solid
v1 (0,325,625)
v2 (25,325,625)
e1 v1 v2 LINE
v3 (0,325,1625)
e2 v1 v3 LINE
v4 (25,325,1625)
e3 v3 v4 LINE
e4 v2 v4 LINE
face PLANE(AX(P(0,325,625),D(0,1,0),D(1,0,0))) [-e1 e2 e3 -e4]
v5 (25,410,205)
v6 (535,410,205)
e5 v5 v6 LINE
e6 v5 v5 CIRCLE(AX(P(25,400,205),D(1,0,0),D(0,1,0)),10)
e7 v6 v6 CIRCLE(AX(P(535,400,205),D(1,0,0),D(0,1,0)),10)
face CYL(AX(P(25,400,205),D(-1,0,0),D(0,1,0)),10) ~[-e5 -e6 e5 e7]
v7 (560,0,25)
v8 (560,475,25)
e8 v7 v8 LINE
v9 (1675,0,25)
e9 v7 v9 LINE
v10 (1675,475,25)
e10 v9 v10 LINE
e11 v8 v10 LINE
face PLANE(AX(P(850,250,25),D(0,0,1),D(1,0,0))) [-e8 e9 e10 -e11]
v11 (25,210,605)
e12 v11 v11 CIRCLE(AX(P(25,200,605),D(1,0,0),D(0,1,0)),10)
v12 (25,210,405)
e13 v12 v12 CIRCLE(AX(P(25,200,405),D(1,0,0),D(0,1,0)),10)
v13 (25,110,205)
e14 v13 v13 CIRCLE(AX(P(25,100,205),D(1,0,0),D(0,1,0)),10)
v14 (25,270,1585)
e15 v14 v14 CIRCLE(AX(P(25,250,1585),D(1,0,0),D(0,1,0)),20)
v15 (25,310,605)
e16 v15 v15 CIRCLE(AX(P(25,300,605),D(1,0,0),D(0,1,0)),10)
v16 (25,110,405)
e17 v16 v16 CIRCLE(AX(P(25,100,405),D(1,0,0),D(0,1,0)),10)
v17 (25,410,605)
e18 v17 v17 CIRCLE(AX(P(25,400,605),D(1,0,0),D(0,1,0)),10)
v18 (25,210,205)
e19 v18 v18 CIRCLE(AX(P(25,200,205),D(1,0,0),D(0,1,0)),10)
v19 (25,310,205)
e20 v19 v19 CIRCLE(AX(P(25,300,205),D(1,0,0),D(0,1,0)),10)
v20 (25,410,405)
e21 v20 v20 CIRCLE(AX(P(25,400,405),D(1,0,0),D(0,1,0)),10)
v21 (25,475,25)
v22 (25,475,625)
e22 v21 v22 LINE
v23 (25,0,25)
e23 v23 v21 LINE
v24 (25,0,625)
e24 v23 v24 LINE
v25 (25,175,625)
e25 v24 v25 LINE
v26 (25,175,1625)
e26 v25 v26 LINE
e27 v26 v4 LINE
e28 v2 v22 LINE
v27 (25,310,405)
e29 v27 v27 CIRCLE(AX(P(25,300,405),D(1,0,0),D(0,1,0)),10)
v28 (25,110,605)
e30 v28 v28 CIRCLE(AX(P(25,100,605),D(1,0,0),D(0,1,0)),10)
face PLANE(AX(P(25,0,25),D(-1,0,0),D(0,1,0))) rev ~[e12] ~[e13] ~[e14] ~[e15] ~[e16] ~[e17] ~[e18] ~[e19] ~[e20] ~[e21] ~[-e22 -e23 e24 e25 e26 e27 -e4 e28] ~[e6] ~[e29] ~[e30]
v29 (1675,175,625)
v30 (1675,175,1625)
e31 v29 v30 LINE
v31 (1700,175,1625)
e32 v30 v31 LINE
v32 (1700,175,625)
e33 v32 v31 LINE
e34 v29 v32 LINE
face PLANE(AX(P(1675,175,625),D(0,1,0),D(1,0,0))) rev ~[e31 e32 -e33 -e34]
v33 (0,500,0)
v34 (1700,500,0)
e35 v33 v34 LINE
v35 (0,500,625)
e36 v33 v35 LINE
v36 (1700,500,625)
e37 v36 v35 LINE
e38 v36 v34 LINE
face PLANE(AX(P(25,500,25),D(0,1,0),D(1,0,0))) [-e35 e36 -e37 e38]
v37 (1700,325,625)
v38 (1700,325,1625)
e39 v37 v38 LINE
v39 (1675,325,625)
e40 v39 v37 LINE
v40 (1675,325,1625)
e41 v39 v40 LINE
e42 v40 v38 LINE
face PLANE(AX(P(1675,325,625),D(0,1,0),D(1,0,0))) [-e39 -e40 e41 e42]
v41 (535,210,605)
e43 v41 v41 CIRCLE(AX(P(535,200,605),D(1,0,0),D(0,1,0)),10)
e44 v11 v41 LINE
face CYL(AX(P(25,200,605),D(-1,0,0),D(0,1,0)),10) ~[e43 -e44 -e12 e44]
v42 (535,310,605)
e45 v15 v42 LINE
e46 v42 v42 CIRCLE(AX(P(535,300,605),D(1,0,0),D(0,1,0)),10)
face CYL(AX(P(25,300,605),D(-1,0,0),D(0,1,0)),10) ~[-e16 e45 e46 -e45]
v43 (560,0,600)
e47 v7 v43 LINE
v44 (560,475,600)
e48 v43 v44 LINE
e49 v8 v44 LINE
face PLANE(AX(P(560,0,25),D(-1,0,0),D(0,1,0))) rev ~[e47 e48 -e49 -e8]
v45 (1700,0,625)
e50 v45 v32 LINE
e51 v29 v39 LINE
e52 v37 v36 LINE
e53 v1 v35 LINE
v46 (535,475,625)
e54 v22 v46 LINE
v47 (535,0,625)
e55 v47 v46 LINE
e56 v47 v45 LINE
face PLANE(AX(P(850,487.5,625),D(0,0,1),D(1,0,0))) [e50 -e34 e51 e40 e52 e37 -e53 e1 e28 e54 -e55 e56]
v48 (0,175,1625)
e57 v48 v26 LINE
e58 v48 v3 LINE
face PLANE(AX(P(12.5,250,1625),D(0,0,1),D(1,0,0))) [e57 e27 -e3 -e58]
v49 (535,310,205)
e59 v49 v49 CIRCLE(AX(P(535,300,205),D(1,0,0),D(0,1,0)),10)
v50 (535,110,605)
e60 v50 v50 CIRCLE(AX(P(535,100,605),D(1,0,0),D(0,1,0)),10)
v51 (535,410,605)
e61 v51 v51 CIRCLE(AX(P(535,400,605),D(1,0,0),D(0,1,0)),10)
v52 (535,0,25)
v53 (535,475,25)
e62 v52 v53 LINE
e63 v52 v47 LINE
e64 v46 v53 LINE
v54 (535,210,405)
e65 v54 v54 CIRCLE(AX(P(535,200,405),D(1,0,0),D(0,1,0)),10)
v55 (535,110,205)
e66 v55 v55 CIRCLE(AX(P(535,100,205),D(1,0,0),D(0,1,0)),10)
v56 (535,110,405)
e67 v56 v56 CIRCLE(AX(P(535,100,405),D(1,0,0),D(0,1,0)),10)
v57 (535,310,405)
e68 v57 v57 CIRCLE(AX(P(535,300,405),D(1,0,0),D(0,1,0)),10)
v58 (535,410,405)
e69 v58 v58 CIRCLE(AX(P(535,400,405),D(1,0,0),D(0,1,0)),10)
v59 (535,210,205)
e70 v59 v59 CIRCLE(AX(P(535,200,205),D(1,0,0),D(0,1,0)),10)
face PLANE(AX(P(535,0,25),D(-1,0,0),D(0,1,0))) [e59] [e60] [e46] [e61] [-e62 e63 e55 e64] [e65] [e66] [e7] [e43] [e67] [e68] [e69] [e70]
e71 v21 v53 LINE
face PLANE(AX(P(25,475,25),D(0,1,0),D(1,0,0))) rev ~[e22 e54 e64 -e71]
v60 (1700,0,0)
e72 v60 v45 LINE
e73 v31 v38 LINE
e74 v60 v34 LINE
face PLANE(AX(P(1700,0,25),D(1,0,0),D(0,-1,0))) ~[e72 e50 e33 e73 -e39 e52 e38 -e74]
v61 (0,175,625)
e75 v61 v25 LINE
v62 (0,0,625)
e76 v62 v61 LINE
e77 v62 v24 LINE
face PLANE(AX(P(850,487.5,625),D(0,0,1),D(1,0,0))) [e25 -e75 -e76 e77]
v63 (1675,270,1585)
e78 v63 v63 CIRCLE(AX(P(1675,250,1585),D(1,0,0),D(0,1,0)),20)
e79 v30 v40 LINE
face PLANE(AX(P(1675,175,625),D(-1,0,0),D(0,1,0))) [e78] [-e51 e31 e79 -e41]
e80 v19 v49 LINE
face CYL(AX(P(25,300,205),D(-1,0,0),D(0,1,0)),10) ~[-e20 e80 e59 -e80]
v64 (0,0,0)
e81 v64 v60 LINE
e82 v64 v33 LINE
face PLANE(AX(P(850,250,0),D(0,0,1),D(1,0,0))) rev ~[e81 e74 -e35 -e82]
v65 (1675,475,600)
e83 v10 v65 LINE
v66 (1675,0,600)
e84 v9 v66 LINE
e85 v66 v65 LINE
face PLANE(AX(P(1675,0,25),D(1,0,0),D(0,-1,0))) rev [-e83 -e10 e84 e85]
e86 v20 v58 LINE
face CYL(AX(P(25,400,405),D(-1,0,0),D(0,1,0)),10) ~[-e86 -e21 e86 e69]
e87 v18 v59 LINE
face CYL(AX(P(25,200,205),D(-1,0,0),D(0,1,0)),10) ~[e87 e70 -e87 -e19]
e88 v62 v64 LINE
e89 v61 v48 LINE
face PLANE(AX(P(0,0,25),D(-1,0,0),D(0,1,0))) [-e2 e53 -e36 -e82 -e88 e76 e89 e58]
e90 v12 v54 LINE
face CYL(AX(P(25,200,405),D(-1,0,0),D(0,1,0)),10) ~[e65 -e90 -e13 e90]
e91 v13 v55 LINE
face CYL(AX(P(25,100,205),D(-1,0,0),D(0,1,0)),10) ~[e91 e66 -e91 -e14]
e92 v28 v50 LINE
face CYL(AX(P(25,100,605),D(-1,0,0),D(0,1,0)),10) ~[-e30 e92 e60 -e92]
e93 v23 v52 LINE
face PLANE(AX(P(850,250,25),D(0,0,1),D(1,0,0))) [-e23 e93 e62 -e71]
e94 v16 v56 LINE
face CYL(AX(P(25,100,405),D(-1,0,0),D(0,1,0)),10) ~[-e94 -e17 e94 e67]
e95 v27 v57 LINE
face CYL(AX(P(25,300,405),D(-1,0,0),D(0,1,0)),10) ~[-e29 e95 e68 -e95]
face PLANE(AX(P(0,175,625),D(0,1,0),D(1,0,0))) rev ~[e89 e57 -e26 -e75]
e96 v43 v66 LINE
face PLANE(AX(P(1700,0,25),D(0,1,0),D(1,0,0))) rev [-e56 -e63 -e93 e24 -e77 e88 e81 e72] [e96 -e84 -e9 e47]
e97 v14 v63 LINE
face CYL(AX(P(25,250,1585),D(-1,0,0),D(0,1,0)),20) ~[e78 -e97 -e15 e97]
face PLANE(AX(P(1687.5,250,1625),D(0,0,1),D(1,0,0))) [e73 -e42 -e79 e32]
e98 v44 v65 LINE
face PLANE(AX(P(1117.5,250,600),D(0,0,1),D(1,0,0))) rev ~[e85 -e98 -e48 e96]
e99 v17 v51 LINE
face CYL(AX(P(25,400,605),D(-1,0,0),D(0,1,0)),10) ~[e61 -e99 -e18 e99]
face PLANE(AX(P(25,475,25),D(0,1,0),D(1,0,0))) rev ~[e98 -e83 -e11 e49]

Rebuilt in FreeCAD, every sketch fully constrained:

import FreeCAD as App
import Part
import Sketcher
from FreeCAD import Vector
Q = App.Units.Quantity

doc = App.newDocument("Part")
params = doc.addObject("Spreadsheet::Sheet", "Params")
for row, (alias, value) in enumerate([
    ("sketch1_width", "1700 mm"),
    ("sketch1_height", "500 mm"),
    ("pad1_length", "25 mm"),
    ("sketch2_width", "25 mm"),
    ("sketch2_height", "500 mm"),
    ("pad2_length", "600 mm"),
    ("sketch3_width", "1650 mm"),
    ("sketch3_height", "25 mm"),
    ("pad3_length", "600 mm"),
    ("sketch4_width", "25 mm"),
    ("sketch4_height", "475 mm"),
    ("pad4_length", "600 mm"),
    ("sketch5_width", "1165 mm"),
    ("sketch5_height", "500 mm"),
    ("pad5_length", "25 mm"),
    ("sketch6_diameter", "20 mm"),
    ("pad6_length", "510 mm"),
    ("sketch7_width", "25 mm"),
    ("sketch7_height", "150 mm"),
    ("pad7_length", "1000 mm"),
    ("sketch8_width", "25 mm"),
    ("sketch8_height", "150 mm"),
    ("pad8_length", "1000 mm"),
    ("sketch9_diameter", "40 mm"),
], start=1):
    params.set(f"A{row}", alias)
    params.set(f"B{row}", "=" + value)
    params.setAlias(f"B{row}", alias)

body = doc.addObject("PartDesign::Body", "Body")

sketch1 = body.newObject("Sketcher::SketchObject", "Sketch")
sketch1.AttachmentSupport = (doc.getObject("XY_Plane"), [""])
sketch1.MapMode = "FlatFace"
sketch1.addGeometry([
    Part.LineSegment(Vector(0, 500, 0), Vector(0, 0, 0)),
    Part.LineSegment(Vector(0, 0, 0), Vector(1700, 0, 0)),
    Part.LineSegment(Vector(1700, 0, 0), Vector(1700, 500, 0)),
    Part.LineSegment(Vector(1700, 500, 0), Vector(0, 500, 0)),
], False)
sketch1.addConstraint([
    Sketcher.Constraint("Coincident", 0, 2, 1, 1),
    Sketcher.Constraint("Coincident", 1, 2, 2, 1),
    Sketcher.Constraint("Coincident", 2, 2, 3, 1),
    Sketcher.Constraint("Coincident", 3, 2, 0, 1),
    Sketcher.Constraint("Vertical", 0),
    Sketcher.Constraint("Horizontal", 1),
    Sketcher.Constraint("Vertical", 2),
    Sketcher.Constraint("Horizontal", 3),
    Sketcher.Constraint("Coincident", 0, 2, -1, 1),
    Sketcher.Constraint("DistanceX", 1, 1, 1, 2, Q("1700 mm")),
    Sketcher.Constraint("DistanceY", 0, 2, 0, 1, Q("500 mm")),
])
sketch1.setExpression("Constraints[9]", "Params.sketch1_width")
sketch1.setExpression("Constraints[10]", "Params.sketch1_height")
pad1 = body.newObject("PartDesign::Pad", "Pad")
pad1.Profile = sketch1
pad1.setExpression("Length", "Params.pad1_length")

sketch2 = body.newObject("Sketcher::SketchObject", "Sketch001")
sketch2.AttachmentSupport = (doc.getObject("XY_Plane"), [""])
sketch2.MapMode = "FlatFace"
sketch2.AttachmentOffset = App.Placement(Vector(0, 0, 25), App.Rotation())
sketch2.addGeometry([
    Part.LineSegment(Vector(0, 500, 0), Vector(0, 0, 0)),
    Part.LineSegment(Vector(0, 0, 0), Vector(25, 0, 0)),
    Part.LineSegment(Vector(25, 0, 0), Vector(25, 500, 0)),
    Part.LineSegment(Vector(25, 500, 0), Vector(0, 500, 0)),
], False)
sketch2.addConstraint([
    Sketcher.Constraint("Coincident", 0, 2, 1, 1),
    Sketcher.Constraint("Coincident", 1, 2, 2, 1),
    Sketcher.Constraint("Coincident", 2, 2, 3, 1),
    Sketcher.Constraint("Coincident", 3, 2, 0, 1),
    Sketcher.Constraint("Vertical", 0),
    Sketcher.Constraint("Horizontal", 1),
    Sketcher.Constraint("Vertical", 2),
    Sketcher.Constraint("Horizontal", 3),
    Sketcher.Constraint("Coincident", 0, 2, -1, 1),
    Sketcher.Constraint("DistanceX", 1, 1, 1, 2, Q("25 mm")),
    Sketcher.Constraint("DistanceY", 0, 2, 0, 1, Q("500 mm")),
])
sketch2.setExpression("Constraints[9]", "Params.sketch2_width")
sketch2.setExpression("Constraints[10]", "Params.sketch2_height")
pad2 = body.newObject("PartDesign::Pad", "Pad001")
pad2.Profile = sketch2
pad2.setExpression("Length", "Params.pad2_length")
body2 = doc.addObject("PartDesign::Body", "Body001")
doc.recompute()

body2.BaseFeature = body
doc.recompute()

mirroring = doc.addObject("Part::Mirroring", "Mirroring")
mirroring.Source = body
mirroring.Base = Vector(850, 0, 0)
mirroring.Normal = Vector(1, 0, 0)
body3 = doc.addObject("PartDesign::Body", "Body002")
body3.BaseFeature = mirroring
boolean = body2.newObject("PartDesign::Boolean", "Boolean")
boolean.Type = "Fuse"
boolean.addObjects([body3])
doc.recompute()

sketch3 = body2.newObject("Sketcher::SketchObject", "Sketch002")
sketch3.AttachmentSupport = (doc.getObject("XY_Plane001"), [""])
sketch3.MapMode = "FlatFace"
sketch3.AttachmentOffset = App.Placement(Vector(0, 0, 25), App.Rotation())
sketch3.addGeometry([
    Part.LineSegment(Vector(25, 500, 0), Vector(25, 475, 0)),
    Part.LineSegment(Vector(25, 475, 0), Vector(1675, 475, 0)),
    Part.LineSegment(Vector(1675, 475, 0), Vector(1675, 500, 0)),
    Part.LineSegment(Vector(1675, 500, 0), Vector(25, 500, 0)),
], False)
sketch3.addConstraint([
    Sketcher.Constraint("Coincident", 0, 2, 1, 1),
    Sketcher.Constraint("Coincident", 1, 2, 2, 1),
    Sketcher.Constraint("Coincident", 2, 2, 3, 1),
    Sketcher.Constraint("Coincident", 3, 2, 0, 1),
    Sketcher.Constraint("Vertical", 0),
    Sketcher.Constraint("Horizontal", 1),
    Sketcher.Constraint("Vertical", 2),
    Sketcher.Constraint("Horizontal", 3),
    Sketcher.Constraint("DistanceX", 1, 1, 1, 2, Q("1650 mm")),
    Sketcher.Constraint("DistanceY", 0, 2, 0, 1, Q("25 mm")),
    Sketcher.Constraint("DistanceX", -1, 1, 0, 2, Q("25 mm")),
    Sketcher.Constraint("DistanceY", -1, 1, 0, 2, Q("475 mm")),
])
sketch3.setExpression("Constraints[8]", "Params.sketch3_width")
sketch3.setExpression("Constraints[9]", "Params.sketch3_height")
pad3 = body2.newObject("PartDesign::Pad", "Pad002")
pad3.Profile = sketch3
pad3.setExpression("Length", "Params.pad3_length")

sketch4 = body2.newObject("Sketcher::SketchObject", "Sketch003")
sketch4.AttachmentSupport = (doc.getObject("XY_Plane001"), [""])
sketch4.MapMode = "FlatFace"
sketch4.AttachmentOffset = App.Placement(Vector(0, 0, 25), App.Rotation())
sketch4.addGeometry([
    Part.LineSegment(Vector(535, 475, 0), Vector(535, 0, 0)),
    Part.LineSegment(Vector(535, 0, 0), Vector(560, 0, 0)),
    Part.LineSegment(Vector(560, 0, 0), Vector(560, 475, 0)),
    Part.LineSegment(Vector(560, 475, 0), Vector(535, 475, 0)),
], False)
sketch4.addConstraint([
    Sketcher.Constraint("Coincident", 0, 2, 1, 1),
    Sketcher.Constraint("Coincident", 1, 2, 2, 1),
    Sketcher.Constraint("Coincident", 2, 2, 3, 1),
    Sketcher.Constraint("Coincident", 3, 2, 0, 1),
    Sketcher.Constraint("Vertical", 0),
    Sketcher.Constraint("Horizontal", 1),
    Sketcher.Constraint("Vertical", 2),
    Sketcher.Constraint("Horizontal", 3),
    Sketcher.Constraint("PointOnObject", 0, 2, -1),
    Sketcher.Constraint("DistanceX", 1, 1, 1, 2, Q("25 mm")),
    Sketcher.Constraint("DistanceY", 0, 2, 0, 1, Q("475 mm")),
    Sketcher.Constraint("DistanceX", -1, 1, 0, 2, Q("535 mm")),
])
sketch4.setExpression("Constraints[9]", "Params.sketch4_width")
sketch4.setExpression("Constraints[10]", "Params.sketch4_height")
pad4 = body2.newObject("PartDesign::Pad", "Pad003")
pad4.Profile = sketch4
pad4.setExpression("Length", "Params.pad4_length")

sketch5 = body2.newObject("Sketcher::SketchObject", "Sketch004")
sketch5.AttachmentSupport = (doc.getObject("XY_Plane001"), [""])
sketch5.MapMode = "FlatFace"
sketch5.AttachmentOffset = App.Placement(Vector(0, 0, 625), App.Rotation())
sketch5.addGeometry([
    Part.LineSegment(Vector(535, 500, 0), Vector(535, 0, 0)),
    Part.LineSegment(Vector(535, 0, 0), Vector(1700, 0, 0)),
    Part.LineSegment(Vector(1700, 0, 0), Vector(1700, 500, 0)),
    Part.LineSegment(Vector(1700, 500, 0), Vector(535, 500, 0)),
], False)
sketch5.addConstraint([
    Sketcher.Constraint("Coincident", 0, 2, 1, 1),
    Sketcher.Constraint("Coincident", 1, 2, 2, 1),
    Sketcher.Constraint("Coincident", 2, 2, 3, 1),
    Sketcher.Constraint("Coincident", 3, 2, 0, 1),
    Sketcher.Constraint("Vertical", 0),
    Sketcher.Constraint("Horizontal", 1),
    Sketcher.Constraint("Vertical", 2),
    Sketcher.Constraint("Horizontal", 3),
    Sketcher.Constraint("PointOnObject", 0, 2, -1),
    Sketcher.Constraint("DistanceX", 1, 1, 1, 2, Q("1165 mm")),
    Sketcher.Constraint("DistanceY", 0, 2, 0, 1, Q("500 mm")),
    Sketcher.Constraint("DistanceX", -1, 1, 0, 2, Q("535 mm")),
])
sketch5.setExpression("Constraints[9]", "Params.sketch5_width")
sketch5.setExpression("Constraints[10]", "Params.sketch5_height")
pad5 = body2.newObject("PartDesign::Pad", "Pad004")
pad5.Profile = sketch5
pad5.setExpression("Length", "Params.pad5_length")
pad5.Reversed = True

sketch6 = body2.newObject("Sketcher::SketchObject", "Sketch005")
sketch6.AttachmentSupport = (doc.getObject("YZ_Plane001"), [""])
sketch6.MapMode = "FlatFace"
sketch6.AttachmentOffset = App.Placement(Vector(0, 0, 25), App.Rotation())
sketch6.addGeometry([
    Part.Circle(Vector(100, 605, 0), Vector(0, 0, 1), 10),
    Part.Circle(Vector(100, 205, 0), Vector(0, 0, 1), 10),
    Part.Circle(Vector(100, 405, 0), Vector(0, 0, 1), 10),
    Part.Circle(Vector(200, 605, 0), Vector(0, 0, 1), 10),
    Part.Circle(Vector(200, 405, 0), Vector(0, 0, 1), 10),
    Part.Circle(Vector(200, 205, 0), Vector(0, 0, 1), 10),
    Part.Circle(Vector(300, 605, 0), Vector(0, 0, 1), 10),
    Part.Circle(Vector(300, 405, 0), Vector(0, 0, 1), 10),
    Part.Circle(Vector(300, 205, 0), Vector(0, 0, 1), 10),
    Part.Circle(Vector(400, 605, 0), Vector(0, 0, 1), 10),
    Part.Circle(Vector(400, 405, 0), Vector(0, 0, 1), 10),
    Part.Circle(Vector(400, 205, 0), Vector(0, 0, 1), 10),
], False)
sketch6.addConstraint([
    Sketcher.Constraint("Equal", 0, 1),
    Sketcher.Constraint("Equal", 1, 2),
    Sketcher.Constraint("Equal", 2, 3),
    Sketcher.Constraint("Equal", 3, 4),
    Sketcher.Constraint("Equal", 4, 5),
    Sketcher.Constraint("Equal", 5, 6),
    Sketcher.Constraint("Equal", 6, 7),
    Sketcher.Constraint("Equal", 7, 8),
    Sketcher.Constraint("Equal", 8, 9),
    Sketcher.Constraint("Equal", 9, 10),
    Sketcher.Constraint("Equal", 10, 11),
    Sketcher.Constraint("Horizontal", 0, 3, 3, 3),
    Sketcher.Constraint("Horizontal", 2, 3, 4, 3),
    Sketcher.Constraint("Horizontal", 1, 3, 5, 3),
    Sketcher.Constraint("Horizontal", 3, 3, 6, 3),
    Sketcher.Constraint("Horizontal", 4, 3, 7, 3),
    Sketcher.Constraint("Horizontal", 5, 3, 8, 3),
    Sketcher.Constraint("Horizontal", 6, 3, 9, 3),
    Sketcher.Constraint("Horizontal", 7, 3, 10, 3),
    Sketcher.Constraint("Horizontal", 8, 3, 11, 3),
    Sketcher.Constraint("Vertical", 0, 3, 1, 3),
    Sketcher.Constraint("Vertical", 1, 3, 2, 3),
    Sketcher.Constraint("Vertical", 3, 3, 4, 3),
    Sketcher.Constraint("Vertical", 4, 3, 5, 3),
    Sketcher.Constraint("Vertical", 6, 3, 7, 3),
    Sketcher.Constraint("Vertical", 7, 3, 8, 3),
    Sketcher.Constraint("Vertical", 9, 3, 10, 3),
    Sketcher.Constraint("Vertical", 10, 3, 11, 3),
    Sketcher.Constraint("Diameter", 0, Q("20 mm")),
    Sketcher.Constraint("DistanceX", -1, 1, 0, 3, Q("100 mm")),
    Sketcher.Constraint("DistanceY", -1, 1, 0, 3, Q("605 mm")),
    Sketcher.Constraint("DistanceY", -1, 1, 1, 3, Q("205 mm")),
    Sketcher.Constraint("DistanceY", -1, 1, 2, 3, Q("405 mm")),
    Sketcher.Constraint("DistanceX", -1, 1, 3, 3, Q("200 mm")),
    Sketcher.Constraint("DistanceX", -1, 1, 6, 3, Q("300 mm")),
    Sketcher.Constraint("DistanceX", -1, 1, 9, 3, Q("400 mm")),
])
sketch6.setExpression("Constraints[28]", "Params.sketch6_diameter")
pad6 = body2.newObject("PartDesign::Pad", "Pad005")
pad6.Profile = sketch6
pad6.setExpression("Length", "Params.pad6_length")

sketch7 = body2.newObject("Sketcher::SketchObject", "Sketch006")
sketch7.AttachmentSupport = (doc.getObject("XY_Plane001"), [""])
sketch7.MapMode = "FlatFace"
sketch7.AttachmentOffset = App.Placement(Vector(0, 0, 625), App.Rotation())
sketch7.addGeometry([
    Part.LineSegment(Vector(0, 325, 0), Vector(0, 175, 0)),
    Part.LineSegment(Vector(0, 175, 0), Vector(25, 175, 0)),
    Part.LineSegment(Vector(25, 175, 0), Vector(25, 325, 0)),
    Part.LineSegment(Vector(25, 325, 0), Vector(0, 325, 0)),
], False)
sketch7.addConstraint([
    Sketcher.Constraint("Coincident", 0, 2, 1, 1),
    Sketcher.Constraint("Coincident", 1, 2, 2, 1),
    Sketcher.Constraint("Coincident", 2, 2, 3, 1),
    Sketcher.Constraint("Coincident", 3, 2, 0, 1),
    Sketcher.Constraint("Vertical", 0),
    Sketcher.Constraint("Horizontal", 1),
    Sketcher.Constraint("Vertical", 2),
    Sketcher.Constraint("Horizontal", 3),
    Sketcher.Constraint("PointOnObject", 0, 2, -2),
    Sketcher.Constraint("DistanceX", 1, 1, 1, 2, Q("25 mm")),
    Sketcher.Constraint("DistanceY", 0, 2, 0, 1, Q("150 mm")),
    Sketcher.Constraint("DistanceY", -1, 1, 0, 2, Q("175 mm")),
])
sketch7.setExpression("Constraints[9]", "Params.sketch7_width")
sketch7.setExpression("Constraints[10]", "Params.sketch7_height")
pad7 = body2.newObject("PartDesign::Pad", "Pad006")
pad7.Profile = sketch7
pad7.setExpression("Length", "Params.pad7_length")

sketch8 = body2.newObject("Sketcher::SketchObject", "Sketch007")
sketch8.AttachmentSupport = (doc.getObject("XY_Plane001"), [""])
sketch8.MapMode = "FlatFace"
sketch8.AttachmentOffset = App.Placement(Vector(0, 0, 625), App.Rotation())
sketch8.addGeometry([
    Part.LineSegment(Vector(1675, 325, 0), Vector(1675, 175, 0)),
    Part.LineSegment(Vector(1675, 175, 0), Vector(1700, 175, 0)),
    Part.LineSegment(Vector(1700, 175, 0), Vector(1700, 325, 0)),
    Part.LineSegment(Vector(1700, 325, 0), Vector(1675, 325, 0)),
], False)
sketch8.addConstraint([
    Sketcher.Constraint("Coincident", 0, 2, 1, 1),
    Sketcher.Constraint("Coincident", 1, 2, 2, 1),
    Sketcher.Constraint("Coincident", 2, 2, 3, 1),
    Sketcher.Constraint("Coincident", 3, 2, 0, 1),
    Sketcher.Constraint("Vertical", 0),
    Sketcher.Constraint("Horizontal", 1),
    Sketcher.Constraint("Vertical", 2),
    Sketcher.Constraint("Horizontal", 3),
    Sketcher.Constraint("DistanceX", 1, 1, 1, 2, Q("25 mm")),
    Sketcher.Constraint("DistanceY", 0, 2, 0, 1, Q("150 mm")),
    Sketcher.Constraint("DistanceX", -1, 1, 0, 2, Q("1675 mm")),
    Sketcher.Constraint("DistanceY", -1, 1, 0, 2, Q("175 mm")),
])
sketch8.setExpression("Constraints[8]", "Params.sketch8_width")
sketch8.setExpression("Constraints[9]", "Params.sketch8_height")
pad8 = body2.newObject("PartDesign::Pad", "Pad007")
pad8.Profile = sketch8
pad8.setExpression("Length", "Params.pad8_length")

sketch9 = body2.newObject("Sketcher::SketchObject", "Sketch008")
sketch9.AttachmentSupport = (doc.getObject("YZ_Plane001"), [""])
sketch9.MapMode = "FlatFace"
sketch9.AttachmentOffset = App.Placement(Vector(0, 0, 25), App.Rotation())
sketch9.addGeometry(Part.Circle(Vector(250, 1585, 0), Vector(0, 0, 1), 20), False)
sketch9.addConstraint([
    Sketcher.Constraint("Diameter", 0, Q("40 mm")),
    Sketcher.Constraint("DistanceX", -1, 1, 0, 3, Q("250 mm")),
    Sketcher.Constraint("DistanceY", -1, 1, 0, 3, Q("1585 mm")),
])
sketch9.setExpression("Constraints[0]", "Params.sketch9_diameter")
pad9 = body2.newObject("PartDesign::Pad", "Pad008")
pad9.Profile = sketch9
pad9.Type = "UpToLast"
mirroring.Visibility = False

doc.recompute()
